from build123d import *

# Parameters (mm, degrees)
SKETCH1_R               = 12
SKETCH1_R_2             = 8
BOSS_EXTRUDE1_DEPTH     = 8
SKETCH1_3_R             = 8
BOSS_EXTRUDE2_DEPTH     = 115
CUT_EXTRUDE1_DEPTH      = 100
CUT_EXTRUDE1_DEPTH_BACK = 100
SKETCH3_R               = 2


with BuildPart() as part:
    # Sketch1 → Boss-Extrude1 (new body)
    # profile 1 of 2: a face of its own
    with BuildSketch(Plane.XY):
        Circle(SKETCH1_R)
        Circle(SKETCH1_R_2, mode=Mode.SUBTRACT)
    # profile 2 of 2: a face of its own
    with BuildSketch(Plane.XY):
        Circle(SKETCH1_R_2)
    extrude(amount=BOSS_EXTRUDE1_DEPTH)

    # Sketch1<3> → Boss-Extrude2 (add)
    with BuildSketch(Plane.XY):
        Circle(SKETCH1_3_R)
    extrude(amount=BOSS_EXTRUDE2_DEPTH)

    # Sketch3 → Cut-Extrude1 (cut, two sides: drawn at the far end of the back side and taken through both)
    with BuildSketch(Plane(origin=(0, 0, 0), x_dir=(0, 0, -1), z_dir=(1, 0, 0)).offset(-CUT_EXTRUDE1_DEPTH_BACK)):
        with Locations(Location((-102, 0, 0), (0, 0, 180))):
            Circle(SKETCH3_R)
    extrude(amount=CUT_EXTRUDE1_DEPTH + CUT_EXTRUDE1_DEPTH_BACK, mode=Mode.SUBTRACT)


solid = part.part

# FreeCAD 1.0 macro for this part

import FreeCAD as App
import Part
import Sketcher

doc = App.newDocument("Part")
body = doc.addObject("PartDesign::Body", "Body")

sketch1 = doc.addObject("Sketcher::SketchObject", "Sketch")
body.addObject(sketch1)
sketch1.AttachmentSupport = (doc.XY_Plane, [""])
sketch1.MapMode = "FlatFace"
sketch1.addGeometry(Part.Circle(App.Vector(0, 0, 0), App.Vector(0, 0, 1), 12), False)
sketch1.addConstraint([
    Sketcher.Constraint("Coincident", 0, 3, -1, 1),
    Sketcher.Constraint("Diameter", 0, 24.0),
])
pad1 = doc.addObject("PartDesign::Pad", "Pad")
body.addObject(pad1)
pad1.Profile = sketch1
pad1.Length = 8

sketch2 = doc.addObject("Sketcher::SketchObject", "Sketch001")
body.addObject(sketch2)
sketch2.AttachmentSupport = (doc.XY_Plane, [""])
sketch2.MapMode = "FlatFace"
sketch2.addGeometry(Part.Circle(App.Vector(0, 0, 0), App.Vector(0, 0, 1), 8), False)
sketch2.addConstraint([
    Sketcher.Constraint("Coincident", 0, 3, -1, 1),
    Sketcher.Constraint("Diameter", 0, 16.0),
])
pad2 = doc.addObject("PartDesign::Pad", "Pad001")
body.addObject(pad2)
pad2.Profile = sketch2
pad2.Length = 115

sketch3 = doc.addObject("Sketcher::SketchObject", "Sketch002")
body.addObject(sketch3)
sketch3.AttachmentSupport = (doc.YZ_Plane, [""])
sketch3.MapMode = "FlatFace"
sketch3.addGeometry(Part.Circle(App.Vector(0, 102, 0), App.Vector(0, 0, 1), 2), False)
sketch3.addConstraint([
    Sketcher.Constraint("PointOnObject", 0, 3, -2),
    Sketcher.Constraint("Diameter", 0, 4.0),
    Sketcher.Constraint("DistanceY", -1, 1, 0, 3, 102.0),
])
pocket1 = doc.addObject("PartDesign::Pocket", "Pocket")
body.addObject(pocket1)
pocket1.Profile = sketch3
pocket1.Type = "ThroughAll"
pocket1.Midplane = True

doc.recompute()
